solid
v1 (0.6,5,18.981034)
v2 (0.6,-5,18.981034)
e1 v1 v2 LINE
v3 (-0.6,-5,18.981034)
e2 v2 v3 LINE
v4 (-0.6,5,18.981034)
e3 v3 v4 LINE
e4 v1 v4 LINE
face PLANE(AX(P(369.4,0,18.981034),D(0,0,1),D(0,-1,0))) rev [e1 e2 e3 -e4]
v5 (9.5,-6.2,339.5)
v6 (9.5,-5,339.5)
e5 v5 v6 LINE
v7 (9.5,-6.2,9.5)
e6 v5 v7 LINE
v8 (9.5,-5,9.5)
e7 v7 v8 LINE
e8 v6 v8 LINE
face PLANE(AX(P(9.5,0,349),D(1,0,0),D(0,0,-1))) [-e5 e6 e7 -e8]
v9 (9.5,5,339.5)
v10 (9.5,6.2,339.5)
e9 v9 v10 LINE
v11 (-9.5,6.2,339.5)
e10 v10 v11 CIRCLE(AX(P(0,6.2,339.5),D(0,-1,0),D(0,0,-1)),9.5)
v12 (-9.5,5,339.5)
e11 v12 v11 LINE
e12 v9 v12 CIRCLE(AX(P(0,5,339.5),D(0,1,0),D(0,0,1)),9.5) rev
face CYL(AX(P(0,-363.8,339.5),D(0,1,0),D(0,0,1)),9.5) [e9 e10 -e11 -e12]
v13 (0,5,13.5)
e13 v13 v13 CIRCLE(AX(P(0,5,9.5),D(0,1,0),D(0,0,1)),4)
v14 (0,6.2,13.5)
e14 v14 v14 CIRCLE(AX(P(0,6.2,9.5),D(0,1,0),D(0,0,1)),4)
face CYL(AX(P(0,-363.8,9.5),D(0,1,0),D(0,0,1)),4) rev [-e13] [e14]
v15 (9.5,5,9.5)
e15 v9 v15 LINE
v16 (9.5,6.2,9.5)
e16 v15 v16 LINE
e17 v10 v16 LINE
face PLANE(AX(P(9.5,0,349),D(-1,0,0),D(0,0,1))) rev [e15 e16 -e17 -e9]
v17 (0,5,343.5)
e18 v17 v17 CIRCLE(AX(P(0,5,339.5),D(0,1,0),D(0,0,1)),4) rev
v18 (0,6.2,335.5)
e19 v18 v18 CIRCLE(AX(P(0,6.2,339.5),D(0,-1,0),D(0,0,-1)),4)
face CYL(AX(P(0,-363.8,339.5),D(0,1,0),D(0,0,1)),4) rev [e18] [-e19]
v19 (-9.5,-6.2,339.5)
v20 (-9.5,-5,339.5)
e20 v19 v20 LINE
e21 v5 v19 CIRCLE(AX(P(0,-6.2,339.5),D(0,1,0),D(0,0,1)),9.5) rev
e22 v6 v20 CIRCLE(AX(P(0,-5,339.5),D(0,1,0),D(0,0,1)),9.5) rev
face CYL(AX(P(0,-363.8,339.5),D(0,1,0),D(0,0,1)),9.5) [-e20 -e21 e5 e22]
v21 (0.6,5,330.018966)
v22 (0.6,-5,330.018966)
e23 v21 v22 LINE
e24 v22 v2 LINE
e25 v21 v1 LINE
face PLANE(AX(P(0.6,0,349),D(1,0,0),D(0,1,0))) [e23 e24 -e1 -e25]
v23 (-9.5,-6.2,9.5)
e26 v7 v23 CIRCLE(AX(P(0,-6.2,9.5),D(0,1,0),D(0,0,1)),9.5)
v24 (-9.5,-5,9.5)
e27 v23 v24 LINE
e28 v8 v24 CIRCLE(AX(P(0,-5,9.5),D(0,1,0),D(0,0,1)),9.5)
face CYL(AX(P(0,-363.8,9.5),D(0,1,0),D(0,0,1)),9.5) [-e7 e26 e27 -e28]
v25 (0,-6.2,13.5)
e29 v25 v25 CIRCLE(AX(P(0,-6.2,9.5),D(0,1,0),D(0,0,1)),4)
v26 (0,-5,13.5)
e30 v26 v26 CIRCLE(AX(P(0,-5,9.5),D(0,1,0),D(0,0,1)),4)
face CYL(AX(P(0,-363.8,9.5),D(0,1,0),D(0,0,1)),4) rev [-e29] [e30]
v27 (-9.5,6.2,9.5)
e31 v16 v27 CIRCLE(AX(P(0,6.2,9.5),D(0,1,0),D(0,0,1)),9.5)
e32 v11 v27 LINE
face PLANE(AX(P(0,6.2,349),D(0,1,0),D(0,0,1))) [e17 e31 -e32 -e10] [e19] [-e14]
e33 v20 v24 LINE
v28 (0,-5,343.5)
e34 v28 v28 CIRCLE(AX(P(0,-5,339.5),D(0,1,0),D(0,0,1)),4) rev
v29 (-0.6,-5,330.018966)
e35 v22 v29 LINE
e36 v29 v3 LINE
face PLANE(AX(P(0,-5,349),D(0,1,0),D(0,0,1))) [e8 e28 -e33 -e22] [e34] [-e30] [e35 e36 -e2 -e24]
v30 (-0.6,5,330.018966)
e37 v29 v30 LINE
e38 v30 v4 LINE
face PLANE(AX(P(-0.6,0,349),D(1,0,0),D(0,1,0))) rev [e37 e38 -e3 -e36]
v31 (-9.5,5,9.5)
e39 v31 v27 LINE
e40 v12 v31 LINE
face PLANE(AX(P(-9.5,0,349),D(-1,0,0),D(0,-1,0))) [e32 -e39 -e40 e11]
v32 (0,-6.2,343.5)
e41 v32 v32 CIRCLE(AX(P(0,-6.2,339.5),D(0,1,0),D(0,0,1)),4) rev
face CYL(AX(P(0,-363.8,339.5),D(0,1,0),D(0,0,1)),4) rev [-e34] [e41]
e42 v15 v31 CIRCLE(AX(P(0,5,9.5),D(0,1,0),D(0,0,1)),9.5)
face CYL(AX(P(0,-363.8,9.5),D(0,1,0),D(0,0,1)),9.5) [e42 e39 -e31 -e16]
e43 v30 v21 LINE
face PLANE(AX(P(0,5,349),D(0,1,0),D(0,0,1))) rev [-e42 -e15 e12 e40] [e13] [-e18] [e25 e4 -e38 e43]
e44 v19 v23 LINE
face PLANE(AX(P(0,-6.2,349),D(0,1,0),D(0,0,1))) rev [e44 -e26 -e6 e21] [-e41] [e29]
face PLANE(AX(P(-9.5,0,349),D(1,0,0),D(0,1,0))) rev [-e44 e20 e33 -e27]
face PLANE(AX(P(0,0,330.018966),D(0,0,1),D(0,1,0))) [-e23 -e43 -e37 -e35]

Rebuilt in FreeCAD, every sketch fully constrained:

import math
import FreeCAD as App
import Part
import Sketcher

V = App.Vector

doc = App.newDocument("Part")
params = doc.addObject("Spreadsheet::Sheet", "Params")
for row, (alias, value) in enumerate([
    ("sketch1_width", "19 mm"),
    ("sketch1_height", "10 mm"),
    ("sketch1_width2", "8.9 mm"),
    ("sketch1_height2", "1.2 mm"),
    ("pad1_length", "349 mm"),
    ("sketch2_diameter", "8 mm"),
    ("sketch2_radius", "9.5 mm"),
    ("sketch2_radius2", "14.5 mm"),
    ("pocket1_length", "370 mm"),
    ("sketch3_width", "10 mm"),
    ("pocket2_length", "370 mm"),
    ("sketch4_height", "10 mm"),
    ("sketch4_width", "1.2 mm"),
    ("pocket3_length", "105 mm"),
], start=1):
    params.set(f"A{row}", alias)
    params.set(f"B{row}", "=" + value)
    params.setAlias(f"B{row}", alias)

body = doc.addObject("PartDesign::Body", "Body")

sketch1 = doc.addObject("Sketcher::SketchObject", "Sketch")
body.addObject(sketch1)
sketch1.AttachmentSupport = (doc.XY_Plane, [""])
sketch1.MapMode = "FlatFace"
sketch1.addGeometry([
    Part.LineSegment(V(-0.6, 5, 0), V(-0.6, -5, 0)),
    Part.LineSegment(V(-0.6, -5, 0), V(-9.5, -5, 0)),
    Part.LineSegment(V(-9.5, -5, 0), V(-9.5, -6.2, 0)),
    Part.LineSegment(V(-9.5, -6.2, 0), V(9.5, -6.2, 0)),
    Part.LineSegment(V(9.5, -6.2, 0), V(9.5, -5, 0)),
    Part.LineSegment(V(9.5, -5, 0), V(0.6, -5, 0)),
    Part.LineSegment(V(0.6, -5, 0), V(0.6, 5, 0)),
    Part.LineSegment(V(0.6, 5, 0), V(9.5, 5, 0)),
    Part.LineSegment(V(9.5, 5, 0), V(9.5, 6.2, 0)),
    Part.LineSegment(V(9.5, 6.2, 0), V(-9.5, 6.2, 0)),
    Part.LineSegment(V(-9.5, 6.2, 0), V(-9.5, 5, 0)),
    Part.LineSegment(V(-9.5, 5, 0), V(-0.6, 5, 0)),
], False)
sketch1.addConstraint([
    Sketcher.Constraint("Coincident", 0, 2, 1, 1),
    Sketcher.Constraint("Coincident", 1, 2, 2, 1),
    Sketcher.Constraint("Coincident", 2, 2, 3, 1),
    Sketcher.Constraint("Coincident", 3, 2, 4, 1),
    Sketcher.Constraint("Coincident", 4, 2, 5, 1),
    Sketcher.Constraint("Coincident", 5, 2, 6, 1),
    Sketcher.Constraint("Coincident", 6, 2, 7, 1),
    Sketcher.Constraint("Coincident", 7, 2, 8, 1),
    Sketcher.Constraint("Coincident", 8, 2, 9, 1),
    Sketcher.Constraint("Coincident", 9, 2, 10, 1),
    Sketcher.Constraint("Coincident", 10, 2, 11, 1),
    Sketcher.Constraint("Coincident", 11, 2, 0, 1),
    Sketcher.Constraint("Vertical", 0),
    Sketcher.Constraint("Horizontal", 1),
    Sketcher.Constraint("Vertical", 2),
    Sketcher.Constraint("Horizontal", 3),
    Sketcher.Constraint("Vertical", 4),
    Sketcher.Constraint("Horizontal", 5),
    Sketcher.Constraint("Vertical", 6),
    Sketcher.Constraint("Horizontal", 7),
    Sketcher.Constraint("Vertical", 8),
    Sketcher.Constraint("Horizontal", 9),
    Sketcher.Constraint("Vertical", 10),
    Sketcher.Constraint("Horizontal", 11),
    Sketcher.Constraint("Symmetric", 0, 2, 6, 2, -1, 1),
    Sketcher.Constraint("Symmetric", 2, 2, 8, 2, -1, 1),
    Sketcher.Constraint("Symmetric", 4, 2, 10, 2, -1, 1),
    Sketcher.Constraint("Symmetric", 1, 2, 4, 2, -2),
    Sketcher.Constraint("DistanceX", 3, 1, 3, 2, 19.0),
    Sketcher.Constraint("DistanceY", 0, 2, 0, 1, 10.0),
    Sketcher.Constraint("DistanceX", 1, 2, 1, 1, 8.9),
    Sketcher.Constraint("DistanceY", 2, 2, 2, 1, 1.2),
])
sketch1.setExpression("Constraints[28]", "Params.sketch1_width")
sketch1.setExpression("Constraints[29]", "Params.sketch1_height")
sketch1.setExpression("Constraints[30]", "Params.sketch1_width2")
sketch1.setExpression("Constraints[31]", "Params.sketch1_height2")
pad1 = doc.addObject("PartDesign::Pad", "Pad")
body.addObject(pad1)
pad1.Profile = sketch1
pad1.setExpression("Length", "Params.pad1_length")

sketch2 = doc.addObject("Sketcher::SketchObject", "Sketch001")
body.addObject(sketch2)
sketch2.AttachmentSupport = (doc.XZ_Plane, [""])
sketch2.MapMode = "FlatFace"
sketch2.AttachmentOffset = App.Placement(V(0, 0, -6.2), App.Rotation())
sketch2.addGeometry([
    Part.ArcOfCircle(Part.Circle(V(0, 9.5, 0), V(0, 0, 1), 9.5), math.radians(-180), math.radians(-90)),
    Part.ArcOfCircle(Part.Circle(V(0, 9.5, 0), V(0, 0, 1), 9.5), math.radians(-90), math.radians(0)),
    Part.LineSegment(V(9.5, 9.5, 0), V(14.5, 9.5, 0)),
    Part.ArcOfCircle(Part.Circle(V(0, 9.5, 0), V(0, 0, 1), 14.5), math.radians(180), math.radians(360)),
    Part.LineSegment(V(-14.5, 9.5, 0), V(-9.5, 9.5, 0)),
    Part.Circle(V(0, 9.5, 0), V(0, 0, 1), 4),
], False)
sketch2.addConstraint([
    Sketcher.Constraint("Tangent", 0, 2, 1, 1),
    Sketcher.Constraint("Coincident", 1, 2, 2, 1),
    Sketcher.Constraint("Coincident", 2, 2, 3, 2),
    Sketcher.Constraint("Coincident", 3, 1, 4, 1),
    Sketcher.Constraint("Coincident", 4, 2, 0, 1),
    Sketcher.Constraint("Horizontal", 2),
    Sketcher.Constraint("Horizontal", 4),
    Sketcher.Constraint("Coincident", 0, 2, -1, 1),
    Sketcher.Constraint("Coincident", 3, 3, 0, 3),
    Sketcher.Constraint("Coincident", 5, 3, 0, 3),
    Sketcher.Constraint("Equal", 0, 1),
    Sketcher.Constraint("Symmetric", 2, 2, 3, 1, -2),
    Sketcher.Constraint("Horizontal", 5, 3, 1, 2),
    Sketcher.Constraint("Diameter", 5, 8.0),
    Sketcher.Constraint("Radius", 0, 9.5),
    Sketcher.Constraint("Radius", 3, 14.5),
])
sketch2.setExpression("Constraints[13]", "Params.sketch2_diameter")
sketch2.setExpression("Constraints[14]", "Params.sketch2_radius")
sketch2.setExpression("Constraints[15]", "Params.sketch2_radius2")
pocket1 = doc.addObject("PartDesign::Pocket", "Pocket")
body.addObject(pocket1)
pocket1.Profile = sketch2
pocket1.setExpression("Length", "Params.pocket1_length")
pocket1.Reversed = True
doc.recompute()

datumplane = doc.addObject("PartDesign::Plane", "DatumPlane")
body.addObject(datumplane)
datumplane.AttachmentSupport = (doc.XY_Plane, [""])
datumplane.MapMode = "FlatFace"
datumplane.AttachmentOffset = App.Placement(V(0, 0, 174.5), App.Rotation())
mirrored = doc.addObject("PartDesign::Mirrored", "Mirrored")
body.addObject(mirrored)
mirrored.Originals = [pocket1]
mirrored.MirrorPlane = (datumplane, [""])
body.Tip = mirrored

sketch3 = doc.addObject("Sketcher::SketchObject", "Sketch002")
body.addObject(sketch3)
sketch3.AttachmentSupport = (doc.YZ_Plane, [""])
sketch3.MapMode = "FlatFace"
sketch3.AttachmentOffset = App.Placement(V(0, 0, -0.6), App.Rotation())
sketch3.addGeometry([
    Part.LineSegment(V(5, 0.018966, 0), V(-5, 0.018966, 0)),
    Part.LineSegment(V(-5, 0.018966, 0), V(-5, 18.981034, 0)),
    Part.LineSegment(V(-5, 18.981034, 0), V(5, 18.981034, 0)),
    Part.LineSegment(V(5, 18.981034, 0), V(5, 0.018966, 0)),
], False)
sketch3.addConstraint([
    Sketcher.Constraint("Coincident", 0, 2, 1, 1),
    Sketcher.Constraint("Coincident", 1, 2, 2, 1),
    Sketcher.Constraint("Coincident", 2, 2, 3, 1),
    Sketcher.Constraint("Coincident", 3, 2, 0, 1),
    Sketcher.Constraint("Horizontal", 0),
    Sketcher.Constraint("Vertical", 1),
    Sketcher.Constraint("Horizontal", 2),
    Sketcher.Constraint("Vertical", 3),
    Sketcher.Constraint("DistanceX", 0, 2, 0, 1, 10.0),
    Sketcher.Constraint("DistanceX", 0, 2, -1, 1, 5.0),
    Sketcher.Constraint("DistanceY", 1, 1, 1, 2, 18.962067),
    Sketcher.Constraint("DistanceY", -1, 1, 0, 2, 0.018966),
])
sketch3.setExpression("Constraints[8]", "Params.sketch3_width")
pocket2 = doc.addObject("PartDesign::Pocket", "Pocket001")
body.addObject(pocket2)
pocket2.Profile = sketch3
pocket2.setExpression("Length", "Params.pocket2_length")
pocket2.Reversed = True

sketch4 = doc.addObject("Sketcher::SketchObject", "Sketch003")
body.addObject(sketch4)
sketch4.AttachmentSupport = (doc.XY_Plane, [""])
sketch4.MapMode = "FlatFace"
sketch4.AttachmentOffset = App.Placement(V(0, 0, 18.981034), App.Rotation())
sketch4.addGeometry([
    Part.LineSegment(V(0.6, 5, 0), V(0.6, -5, 0)),
    Part.LineSegment(V(0.6, -5, 0), V(-0.6, -5, 0)),
    Part.LineSegment(V(-0.6, -5, 0), V(-0.6, 5, 0)),
    Part.LineSegment(V(-0.6, 5, 0), V(0.6, 5, 0)),
], False)
sketch4.addConstraint([
    Sketcher.Constraint("Coincident", 0, 2, 1, 1),
    Sketcher.Constraint("Coincident", 1, 2, 2, 1),
    Sketcher.Constraint("Coincident", 2, 2, 3, 1),
    Sketcher.Constraint("Coincident", 3, 2, 0, 1),
    Sketcher.Constraint("Vertical", 0),
    Sketcher.Constraint("Horizontal", 1),
    Sketcher.Constraint("Vertical", 2),
    Sketcher.Constraint("Horizontal", 3),
    Sketcher.Constraint("Symmetric", 0, 2, 2, 2, -1, 1),
    Sketcher.Constraint("DistanceY", 0, 2, 0, 1, 10.0),
    Sketcher.Constraint("DistanceX", 1, 2, 1, 1, 1.2),
])
sketch4.setExpression("Constraints[9]", "Params.sketch4_height")
sketch4.setExpression("Constraints[10]", "Params.sketch4_width")
pocket3 = doc.addObject("PartDesign::Pocket", "Pocket002")
body.addObject(pocket3)
pocket3.Profile = sketch4
pocket3.setExpression("Length", "Params.pocket3_length")
doc.recompute()

datumplane2 = doc.addObject("PartDesign::Plane", "DatumPlane001")
body.addObject(datumplane2)
datumplane2.AttachmentSupport = (doc.XY_Plane, [""])
datumplane2.MapMode = "FlatFace"
datumplane2.AttachmentOffset = App.Placement(V(0, 0, 174.5), App.Rotation())
mirrored2 = doc.addObject("PartDesign::Mirrored", "Mirrored001")
body.addObject(mirrored2)
mirrored2.Originals = [pocket3]
mirrored2.MirrorPlane = (datumplane2, [""])
body.Tip = mirrored2

doc.recompute()
